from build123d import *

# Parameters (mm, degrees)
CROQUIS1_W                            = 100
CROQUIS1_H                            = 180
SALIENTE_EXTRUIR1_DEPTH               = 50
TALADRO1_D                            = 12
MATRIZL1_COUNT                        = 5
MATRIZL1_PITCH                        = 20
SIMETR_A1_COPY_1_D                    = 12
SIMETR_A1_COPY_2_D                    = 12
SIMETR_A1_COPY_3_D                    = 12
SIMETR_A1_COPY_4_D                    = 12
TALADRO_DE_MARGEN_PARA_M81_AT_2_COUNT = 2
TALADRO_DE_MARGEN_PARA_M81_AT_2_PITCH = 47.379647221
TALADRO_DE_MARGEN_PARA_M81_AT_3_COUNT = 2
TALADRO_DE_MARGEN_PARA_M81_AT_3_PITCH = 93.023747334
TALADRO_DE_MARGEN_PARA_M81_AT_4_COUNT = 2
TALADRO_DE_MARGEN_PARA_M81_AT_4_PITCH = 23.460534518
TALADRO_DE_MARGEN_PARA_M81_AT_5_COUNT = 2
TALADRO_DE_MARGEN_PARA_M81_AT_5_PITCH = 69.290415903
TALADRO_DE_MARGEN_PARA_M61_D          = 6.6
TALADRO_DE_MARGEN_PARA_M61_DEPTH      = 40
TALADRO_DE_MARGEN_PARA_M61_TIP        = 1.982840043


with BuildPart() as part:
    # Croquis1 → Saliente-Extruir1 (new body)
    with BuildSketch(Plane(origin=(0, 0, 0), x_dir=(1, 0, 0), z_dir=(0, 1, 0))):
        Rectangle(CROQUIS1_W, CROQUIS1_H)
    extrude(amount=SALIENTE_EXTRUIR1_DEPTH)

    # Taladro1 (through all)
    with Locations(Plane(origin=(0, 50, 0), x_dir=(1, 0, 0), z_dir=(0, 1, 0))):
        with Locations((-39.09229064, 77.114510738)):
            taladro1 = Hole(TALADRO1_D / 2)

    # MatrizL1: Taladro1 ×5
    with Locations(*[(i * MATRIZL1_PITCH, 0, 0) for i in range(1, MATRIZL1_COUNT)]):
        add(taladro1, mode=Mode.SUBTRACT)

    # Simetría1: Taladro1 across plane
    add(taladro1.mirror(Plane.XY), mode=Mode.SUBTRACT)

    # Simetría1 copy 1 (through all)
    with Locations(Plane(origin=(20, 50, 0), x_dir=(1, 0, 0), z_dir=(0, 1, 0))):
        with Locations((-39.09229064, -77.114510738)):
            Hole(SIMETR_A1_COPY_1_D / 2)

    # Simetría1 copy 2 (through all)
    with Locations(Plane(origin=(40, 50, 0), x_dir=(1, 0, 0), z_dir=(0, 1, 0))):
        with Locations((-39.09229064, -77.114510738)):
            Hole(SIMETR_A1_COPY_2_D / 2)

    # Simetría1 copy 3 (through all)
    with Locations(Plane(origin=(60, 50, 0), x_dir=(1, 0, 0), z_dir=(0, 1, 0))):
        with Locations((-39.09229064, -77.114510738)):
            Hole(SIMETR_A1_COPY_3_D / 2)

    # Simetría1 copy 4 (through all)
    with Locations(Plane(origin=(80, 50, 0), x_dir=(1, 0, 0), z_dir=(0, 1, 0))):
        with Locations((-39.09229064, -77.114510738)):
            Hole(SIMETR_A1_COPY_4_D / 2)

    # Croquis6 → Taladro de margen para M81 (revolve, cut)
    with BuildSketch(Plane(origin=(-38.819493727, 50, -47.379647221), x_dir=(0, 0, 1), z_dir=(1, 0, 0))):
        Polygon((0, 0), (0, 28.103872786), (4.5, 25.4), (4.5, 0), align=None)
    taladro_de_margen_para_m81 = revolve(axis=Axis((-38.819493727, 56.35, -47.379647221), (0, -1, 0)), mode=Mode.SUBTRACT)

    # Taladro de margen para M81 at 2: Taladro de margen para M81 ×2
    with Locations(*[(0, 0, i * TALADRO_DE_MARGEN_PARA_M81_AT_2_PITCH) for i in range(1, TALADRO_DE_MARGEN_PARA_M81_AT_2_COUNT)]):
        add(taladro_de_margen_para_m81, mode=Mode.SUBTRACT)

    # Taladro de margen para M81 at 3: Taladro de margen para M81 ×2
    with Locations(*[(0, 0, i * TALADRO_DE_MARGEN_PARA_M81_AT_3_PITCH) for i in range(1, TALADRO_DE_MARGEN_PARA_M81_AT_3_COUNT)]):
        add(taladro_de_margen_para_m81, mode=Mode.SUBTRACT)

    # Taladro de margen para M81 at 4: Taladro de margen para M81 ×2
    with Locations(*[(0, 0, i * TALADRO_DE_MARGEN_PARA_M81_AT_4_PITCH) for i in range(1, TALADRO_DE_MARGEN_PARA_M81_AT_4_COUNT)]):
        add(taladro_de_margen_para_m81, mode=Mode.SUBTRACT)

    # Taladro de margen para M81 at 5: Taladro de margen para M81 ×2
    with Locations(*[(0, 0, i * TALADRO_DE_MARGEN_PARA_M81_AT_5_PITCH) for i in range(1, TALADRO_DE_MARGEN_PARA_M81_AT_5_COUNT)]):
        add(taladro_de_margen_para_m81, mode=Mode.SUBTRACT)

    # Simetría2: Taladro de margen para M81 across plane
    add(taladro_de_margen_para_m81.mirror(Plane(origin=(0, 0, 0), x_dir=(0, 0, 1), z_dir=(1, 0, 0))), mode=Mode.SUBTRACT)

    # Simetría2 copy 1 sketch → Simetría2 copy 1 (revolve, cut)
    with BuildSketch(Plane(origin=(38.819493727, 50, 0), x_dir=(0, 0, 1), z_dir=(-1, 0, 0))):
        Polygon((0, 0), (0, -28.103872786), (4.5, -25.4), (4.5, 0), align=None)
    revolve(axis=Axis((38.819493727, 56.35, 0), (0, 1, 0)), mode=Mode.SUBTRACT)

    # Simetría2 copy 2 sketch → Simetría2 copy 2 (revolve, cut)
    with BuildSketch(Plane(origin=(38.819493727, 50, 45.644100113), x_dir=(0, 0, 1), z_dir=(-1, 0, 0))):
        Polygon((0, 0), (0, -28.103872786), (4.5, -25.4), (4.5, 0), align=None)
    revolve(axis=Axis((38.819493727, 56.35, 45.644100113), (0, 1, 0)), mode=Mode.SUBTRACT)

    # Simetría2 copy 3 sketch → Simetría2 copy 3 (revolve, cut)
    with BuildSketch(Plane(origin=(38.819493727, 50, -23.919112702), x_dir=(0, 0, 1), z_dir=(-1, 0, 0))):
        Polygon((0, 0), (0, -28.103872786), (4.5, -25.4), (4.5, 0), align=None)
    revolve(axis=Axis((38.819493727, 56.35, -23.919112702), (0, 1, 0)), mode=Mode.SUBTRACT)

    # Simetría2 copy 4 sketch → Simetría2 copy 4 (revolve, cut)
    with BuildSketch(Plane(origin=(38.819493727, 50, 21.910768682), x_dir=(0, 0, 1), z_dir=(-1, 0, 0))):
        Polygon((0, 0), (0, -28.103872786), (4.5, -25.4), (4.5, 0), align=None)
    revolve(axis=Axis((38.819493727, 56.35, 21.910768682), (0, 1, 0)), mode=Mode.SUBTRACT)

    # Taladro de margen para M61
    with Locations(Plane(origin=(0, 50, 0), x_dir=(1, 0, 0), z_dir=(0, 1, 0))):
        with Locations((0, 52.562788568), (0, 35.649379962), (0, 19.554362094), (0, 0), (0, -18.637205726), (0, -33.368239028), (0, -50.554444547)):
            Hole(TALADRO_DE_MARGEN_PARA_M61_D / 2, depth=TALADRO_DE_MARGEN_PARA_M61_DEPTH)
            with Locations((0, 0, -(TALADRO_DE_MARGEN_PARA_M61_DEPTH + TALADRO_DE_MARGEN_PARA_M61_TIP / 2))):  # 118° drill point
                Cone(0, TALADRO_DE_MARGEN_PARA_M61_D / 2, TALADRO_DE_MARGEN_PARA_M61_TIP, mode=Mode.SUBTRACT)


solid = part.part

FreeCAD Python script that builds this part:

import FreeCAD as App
import Part
import Sketcher
from FreeCAD import Vector
Q = App.Units.Quantity

doc = App.newDocument("Part")
body = doc.addObject("PartDesign::Body", "Body")

# Sketch on XZ plane
sketch1 = doc.addObject("Sketcher::SketchObject", "Sketch")
body.addObject(sketch1)
sketch1.AttachmentSupport = (doc.XZ_Plane, [""])
sketch1.MapMode = "FlatFace"
sketch1.addGeometry([
    Part.LineSegment(Vector(-50, -90, 0), Vector(-50, 90, 0)),
    Part.LineSegment(Vector(-50, 90, 0), Vector(50, 90, 0)),
    Part.LineSegment(Vector(50, 90, 0), Vector(50, -90, 0)),
    Part.LineSegment(Vector(50, -90, 0), Vector(-50, -90, 0)),
], False)
sketch1.addConstraint([
    Sketcher.Constraint("Coincident", 0, 2, 1, 1),
    Sketcher.Constraint("Coincident", 1, 2, 2, 1),
    Sketcher.Constraint("Coincident", 2, 2, 3, 1),
    Sketcher.Constraint("Coincident", 3, 2, 0, 1),
    Sketcher.Constraint("Vertical", 0),
    Sketcher.Constraint("Horizontal", 1),
    Sketcher.Constraint("Vertical", 2),
    Sketcher.Constraint("Horizontal", 3),
    Sketcher.Constraint("Symmetric", 0, 2, 2, 2, -1, 1),
    Sketcher.Constraint("DistanceX", 1, 1, 1, 2, 100.0),
    Sketcher.Constraint("DistanceY", 0, 1, 0, 2, 180.0),
])
pad1 = doc.addObject("PartDesign::Pad", "Pad")
body.addObject(pad1)
pad1.Profile = sketch1
pad1.Length = 50
pad1.Reversed = True

# Sketch on XZ plane
sketch2 = doc.addObject("Sketcher::SketchObject", "Sketch001")
body.addObject(sketch2)
sketch2.AttachmentSupport = (doc.XZ_Plane, [""])
sketch2.MapMode = "FlatFace"
sketch2.AttachmentOffset = App.Placement(Vector(0, 0, -50), App.Rotation())
sketch2.addGeometry(Part.Circle(Vector(-39.092291, -77.114511, 0), Vector(0, 0, 1), 6), False)
sketch2.addConstraint([
    Sketcher.Constraint("Diameter", 0, 12.0),
    Sketcher.Constraint("DistanceX", 0, 3, -1, 1, 39.092291),
    Sketcher.Constraint("DistanceY", 0, 3, -1, 1, 77.114511),
])
doc.recompute()
hole = doc.addObject("PartDesign::Hole", "Hole")
body.addObject(hole)
hole.Profile = sketch2
hole.ThreadType = "None"
hole.Diameter = 12
hole.DepthType = "ThroughAll"
hole.Reversed = True
doc.recompute()

linearpattern = doc.addObject("PartDesign::LinearPattern", "LinearPattern")
body.addObject(linearpattern)
linearpattern.Originals = [hole]
linearpattern.Direction = (doc.X_Axis, [""])
linearpattern.Mode = "offset"
linearpattern.Offset = 20
linearpattern.Occurrences = 5
body.Tip = linearpattern
doc.recompute()

mirrored = doc.addObject("PartDesign::Mirrored", "Mirrored")
body.addObject(mirrored)
mirrored.Originals = [hole]
mirrored.MirrorPlane = (doc.XY_Plane, [""])
body.Tip = mirrored

# Sketch on XZ plane
sketch3 = doc.addObject("Sketcher::SketchObject", "Sketch002")
body.addObject(sketch3)
sketch3.AttachmentSupport = (doc.XZ_Plane, [""])
sketch3.MapMode = "FlatFace"
sketch3.AttachmentOffset = App.Placement(Vector(0, 0, -50), App.Rotation())
sketch3.addGeometry(Part.Circle(Vector(-19.092291, 77.114511, 0), Vector(0, 0, 1), 6), False)
sketch3.addConstraint([
    Sketcher.Constraint("Diameter", 0, 12.0),
    Sketcher.Constraint("DistanceX", 0, 3, -1, 1, 19.092291),
    Sketcher.Constraint("DistanceY", -1, 1, 0, 3, 77.114511),
])
doc.recompute()
hole2 = doc.addObject("PartDesign::Hole", "Hole001")
body.addObject(hole2)
hole2.Profile = sketch3
hole2.ThreadType = "None"
hole2.Diameter = 12
hole2.DepthType = "ThroughAll"
hole2.Reversed = True

# Sketch on XZ plane
sketch4 = doc.addObject("Sketcher::SketchObject", "Sketch003")
body.addObject(sketch4)
sketch4.AttachmentSupport = (doc.XZ_Plane, [""])
sketch4.MapMode = "FlatFace"
sketch4.AttachmentOffset = App.Placement(Vector(0, 0, -50), App.Rotation())
sketch4.addGeometry(Part.Circle(Vector(0.907709, 77.114511, 0), Vector(0, 0, 1), 6), False)
sketch4.addConstraint([
    Sketcher.Constraint("Diameter", 0, 12.0),
    Sketcher.Constraint("DistanceX", -1, 1, 0, 3, 0.907709),
    Sketcher.Constraint("DistanceY", -1, 1, 0, 3, 77.114511),
])
doc.recompute()
hole3 = doc.addObject("PartDesign::Hole", "Hole002")
body.addObject(hole3)
hole3.Profile = sketch4
hole3.ThreadType = "None"
hole3.Diameter = 12
hole3.DepthType = "ThroughAll"
hole3.Reversed = True

# Sketch on XZ plane
sketch5 = doc.addObject("Sketcher::SketchObject", "Sketch004")
body.addObject(sketch5)
sketch5.AttachmentSupport = (doc.XZ_Plane, [""])
sketch5.MapMode = "FlatFace"
sketch5.AttachmentOffset = App.Placement(Vector(0, 0, -50), App.Rotation())
sketch5.addGeometry(Part.Circle(Vector(20.907709, 77.114511, 0), Vector(0, 0, 1), 6), False)
sketch5.addConstraint([
    Sketcher.Constraint("Diameter", 0, 12.0),
    Sketcher.Constraint("DistanceX", -1, 1, 0, 3, 20.907709),
    Sketcher.Constraint("DistanceY", -1, 1, 0, 3, 77.114511),
])
doc.recompute()
hole4 = doc.addObject("PartDesign::Hole", "Hole003")
body.addObject(hole4)
hole4.Profile = sketch5
hole4.ThreadType = "None"
hole4.Diameter = 12
hole4.DepthType = "ThroughAll"
hole4.Reversed = True

# Sketch on XZ plane
sketch6 = doc.addObject("Sketcher::SketchObject", "Sketch005")
body.addObject(sketch6)
sketch6.AttachmentSupport = (doc.XZ_Plane, [""])
sketch6.MapMode = "FlatFace"
sketch6.AttachmentOffset = App.Placement(Vector(0, 0, -50), App.Rotation())
sketch6.addGeometry(Part.Circle(Vector(40.907709, 77.114511, 0), Vector(0, 0, 1), 6), False)
sketch6.addConstraint([
    Sketcher.Constraint("Diameter", 0, 12.0),
    Sketcher.Constraint("DistanceX", -1, 1, 0, 3, 40.907709),
    Sketcher.Constraint("DistanceY", -1, 1, 0, 3, 77.114511),
])
doc.recompute()
hole5 = doc.addObject("PartDesign::Hole", "Hole004")
body.addObject(hole5)
hole5.Profile = sketch6
hole5.ThreadType = "None"
hole5.Diameter = 12
hole5.DepthType = "ThroughAll"
hole5.Reversed = True

# Sketch on YZ plane
sketch7 = doc.addObject("Sketcher::SketchObject", "Sketch006")
body.addObject(sketch7)
sketch7.AttachmentSupport = (doc.YZ_Plane, [""])
sketch7.MapMode = "FlatFace"
sketch7.AttachmentOffset = App.Placement(Vector(0, 0, -38.819494), App.Rotation())
sketch7.addGeometry([
    Part.LineSegment(Vector(21.896127, -47.379647, 0), Vector(50, -47.379647, 0)),
    Part.LineSegment(Vector(50, -47.379647, 0), Vector(50, -42.879647, 0)),
    Part.LineSegment(Vector(50, -42.879647, 0), Vector(24.6, -42.879647, 0)),
    Part.LineSegment(Vector(24.6, -42.879647, 0), Vector(21.896127, -47.379647, 0)),
], False)
sketch7.addGeometry(Part.LineSegment(Vector(50, -47.379647, 0), Vector(21.896127, -47.379647, 0)), True)  # axis
sketch7.addConstraint([
    Sketcher.Constraint("Coincident", 0, 2, 1, 1),
    Sketcher.Constraint("Coincident", 1, 2, 2, 1),
    Sketcher.Constraint("Coincident", 2, 2, 3, 1),
    Sketcher.Constraint("Coincident", 3, 2, 0, 1),
    Sketcher.Constraint("Horizontal", 0),
    Sketcher.Constraint("Vertical", 1),
    Sketcher.Constraint("Horizontal", 2),
    Sketcher.Constraint("Horizontal", 4),
    Sketcher.Constraint("Coincident", 4, 1, 0, 2),
    Sketcher.Constraint("Equal", 0, 4),
    Sketcher.Constraint("Angle", 3, Q("-121 deg")),
    Sketcher.Constraint("DistanceX", 2, 2, 2, 1, 25.4),
    Sketcher.Constraint("DistanceY", 1, 1, 1, 2, 4.5),
    Sketcher.Constraint("DistanceX", -1, 1, 0, 2, 50.0),
    Sketcher.Constraint("DistanceY", 0, 2, -1, 1, 47.379647),
])
groove = doc.addObject("PartDesign::Groove", "Groove")
body.addObject(groove)
groove.Profile = sketch7
groove.ReferenceAxis = (sketch7, ["Axis0"])
groove.Angle = 360
doc.recompute()

linearpattern2 = doc.addObject("PartDesign::LinearPattern", "LinearPattern001")
body.addObject(linearpattern2)
linearpattern2.Originals = [groove]
linearpattern2.Direction = (doc.Z_Axis, [""])
linearpattern2.Mode = "offset"
linearpattern2.Offset = 47.379647
linearpattern2.Occurrences = 2
body.Tip = linearpattern2
doc.recompute()

linearpattern3 = doc.addObject("PartDesign::LinearPattern", "LinearPattern002")
body.addObject(linearpattern3)
linearpattern3.Originals = [groove]
linearpattern3.Direction = (doc.Z_Axis, [""])
linearpattern3.Mode = "offset"
linearpattern3.Offset = 93.023747
linearpattern3.Occurrences = 2
body.Tip = linearpattern3
doc.recompute()

linearpattern4 = doc.addObject("PartDesign::LinearPattern", "LinearPattern003")
body.addObject(linearpattern4)
linearpattern4.Originals = [groove]
linearpattern4.Direction = (doc.Z_Axis, [""])
linearpattern4.Mode = "offset"
linearpattern4.Offset = 23.460535
linearpattern4.Occurrences = 2
body.Tip = linearpattern4
doc.recompute()

linearpattern5 = doc.addObject("PartDesign::LinearPattern", "LinearPattern004")
body.addObject(linearpattern5)
linearpattern5.Originals = [groove]
linearpattern5.Direction = (doc.Z_Axis, [""])
linearpattern5.Mode = "offset"
linearpattern5.Offset = 69.290416
linearpattern5.Occurrences = 2
body.Tip = linearpattern5
doc.recompute()

mirrored2 = doc.addObject("PartDesign::Mirrored", "Mirrored001")
body.addObject(mirrored2)
mirrored2.Originals = [groove]
mirrored2.MirrorPlane = (doc.YZ_Plane, [""])
body.Tip = mirrored2

# Sketch on YZ plane
sketch8 = doc.addObject("Sketcher::SketchObject", "Sketch007")
body.addObject(sketch8)
sketch8.AttachmentSupport = (doc.YZ_Plane, [""])
sketch8.MapMode = "FlatFace"
sketch8.AttachmentOffset = App.Placement(Vector(0, 0, 38.819494), App.Rotation())
sketch8.addGeometry([
    Part.LineSegment(Vector(50, 0, 0), Vector(21.896127, 0, 0)),
    Part.LineSegment(Vector(21.896127, 0, 0), Vector(24.6, 4.5, 0)),
    Part.LineSegment(Vector(24.6, 4.5, 0), Vector(50, 4.5, 0)),
    Part.LineSegment(Vector(50, 4.5, 0), Vector(50, 0, 0)),
], False)
sketch8.addConstraint([
    Sketcher.Constraint("Coincident", 0, 2, 1, 1),
    Sketcher.Constraint("Coincident", 1, 2, 2, 1),
    Sketcher.Constraint("Coincident", 2, 2, 3, 1),
    Sketcher.Constraint("Coincident", 3, 2, 0, 1),
    Sketcher.Constraint("Horizontal", 0),
    Sketcher.Constraint("Horizontal", 2),
    Sketcher.Constraint("Vertical", 3),
    Sketcher.Constraint("PointOnObject", 0, 2, -1),
    Sketcher.Constraint("Angle", 1, Q("59 deg")),
    Sketcher.Constraint("DistanceX", 2, 1, 2, 2, 25.4),
    Sketcher.Constraint("DistanceY", 3, 2, 3, 1, 4.5),
    Sketcher.Constraint("DistanceX", -1, 1, 2, 2, 50.0),
])
groove2 = doc.addObject("PartDesign::Groove", "Groove001")
body.addObject(groove2)
groove2.Profile = sketch8
groove2.ReferenceAxis = (sketch8, ["H_Axis"])
groove2.Angle = 360

# Sketch on YZ plane
sketch9 = doc.addObject("Sketcher::SketchObject", "Sketch008")
body.addObject(sketch9)
sketch9.AttachmentSupport = (doc.YZ_Plane, [""])
sketch9.MapMode = "FlatFace"
sketch9.AttachmentOffset = App.Placement(Vector(0, 0, 38.819494), App.Rotation())
sketch9.addGeometry([
    Part.LineSegment(Vector(50, 45.6441, 0), Vector(21.896127, 45.6441, 0)),
    Part.LineSegment(Vector(21.896127, 45.6441, 0), Vector(24.6, 50.1441, 0)),
    Part.LineSegment(Vector(24.6, 50.1441, 0), Vector(50, 50.1441, 0)),
    Part.LineSegment(Vector(50, 50.1441, 0), Vector(50, 45.6441, 0)),
], False)
sketch9.addGeometry(Part.LineSegment(Vector(21.896127, 45.6441, 0), Vector(50, 45.6441, 0)), True)  # axis
sketch9.addConstraint([
    Sketcher.Constraint("Coincident", 0, 2, 1, 1),
    Sketcher.Constraint("Coincident", 1, 2, 2, 1),
    Sketcher.Constraint("Coincident", 2, 2, 3, 1),
    Sketcher.Constraint("Coincident", 3, 2, 0, 1),
    Sketcher.Constraint("Horizontal", 0),
    Sketcher.Constraint("Horizontal", 2),
    Sketcher.Constraint("Vertical", 3),
    Sketcher.Constraint("Horizontal", 4),
    Sketcher.Constraint("Coincident", 4, 1, 0, 2),
    Sketcher.Constraint("Vertical", 2, 2, 4, 2),
    Sketcher.Constraint("Angle", 1, Q("59 deg")),
    Sketcher.Constraint("DistanceX", 2, 1, 2, 2, 25.4),
    Sketcher.Constraint("DistanceY", 3, 2, 3, 1, 4.5),
    Sketcher.Constraint("DistanceX", -1, 1, 2, 2, 50.0),
    Sketcher.Constraint("DistanceY", -1, 1, 0, 2, 45.6441),
])
groove3 = doc.addObject("PartDesign::Groove", "Groove002")
body.addObject(groove3)
groove3.Profile = sketch9
groove3.ReferenceAxis = (sketch9, ["Axis0"])
groove3.Angle = 360

# Sketch on YZ plane
sketch10 = doc.addObject("Sketcher::SketchObject", "Sketch009")
body.addObject(sketch10)
sketch10.AttachmentSupport = (doc.YZ_Plane, [""])
sketch10.MapMode = "FlatFace"
sketch10.AttachmentOffset = App.Placement(Vector(0, 0, 38.819494), App.Rotation())
sketch10.addGeometry([
    Part.LineSegment(Vector(50, -23.919113, 0), Vector(21.896127, -23.919113, 0)),
    Part.LineSegment(Vector(21.896127, -23.919113, 0), Vector(24.6, -19.419113, 0)),
    Part.LineSegment(Vector(24.6, -19.419113, 0), Vector(50, -19.419113, 0)),
    Part.LineSegment(Vector(50, -19.419113, 0), Vector(50, -23.919113, 0)),
], False)
sketch10.addGeometry(Part.LineSegment(Vector(21.896127, -23.919113, 0), Vector(50, -23.919113, 0)), True)  # axis
sketch10.addConstraint([
    Sketcher.Constraint("Coincident", 0, 2, 1, 1),
    Sketcher.Constraint("Coincident", 1, 2, 2, 1),
    Sketcher.Constraint("Coincident", 2, 2, 3, 1),
    Sketcher.Constraint("Coincident", 3, 2, 0, 1),
    Sketcher.Constraint("Horizontal", 0),
    Sketcher.Constraint("Horizontal", 2),
    Sketcher.Constraint("Vertical", 3),
    Sketcher.Constraint("Horizontal", 4),
    Sketcher.Constraint("Coincident", 4, 1, 0, 2),
    Sketcher.Constraint("Vertical", 2, 2, 4, 2),
    Sketcher.Constraint("Angle", 1, Q("59 deg")),
    Sketcher.Constraint("DistanceX", 2, 1, 2, 2, 25.4),
    Sketcher.Constraint("DistanceY", 3, 2, 3, 1, 4.5),
    Sketcher.Constraint("DistanceX", -1, 1, 2, 2, 50.0),
    Sketcher.Constraint("DistanceY", 0, 2, -1, 1, 23.919113),
])
groove4 = doc.addObject("PartDesign::Groove", "Groove003")
body.addObject(groove4)
groove4.Profile = sketch10
groove4.ReferenceAxis = (sketch10, ["Axis0"])
groove4.Angle = 360

# Sketch on YZ plane
sketch11 = doc.addObject("Sketcher::SketchObject", "Sketch010")
body.addObject(sketch11)
sketch11.AttachmentSupport = (doc.YZ_Plane, [""])
sketch11.MapMode = "FlatFace"
sketch11.AttachmentOffset = App.Placement(Vector(0, 0, 38.819494), App.Rotation())
sketch11.addGeometry([
    Part.LineSegment(Vector(50, 21.910769, 0), Vector(21.896127, 21.910769, 0)),
    Part.LineSegment(Vector(21.896127, 21.910769, 0), Vector(24.6, 26.410769, 0)),
    Part.LineSegment(Vector(24.6, 26.410769, 0), Vector(50, 26.410769, 0)),
    Part.LineSegment(Vector(50, 26.410769, 0), Vector(50, 21.910769, 0)),
], False)
sketch11.addGeometry(Part.LineSegment(Vector(21.896127, 21.910769, 0), Vector(50, 21.910769, 0)), True)  # axis
sketch11.addConstraint([
    Sketcher.Constraint("Coincident", 0, 2, 1, 1),
    Sketcher.Constraint("Coincident", 1, 2, 2, 1),
    Sketcher.Constraint("Coincident", 2, 2, 3, 1),
    Sketcher.Constraint("Coincident", 3, 2, 0, 1),
    Sketcher.Constraint("Horizontal", 0),
    Sketcher.Constraint("Horizontal", 2),
    Sketcher.Constraint("Vertical", 3),
    Sketcher.Constraint("Horizontal", 4),
    Sketcher.Constraint("Coincident", 4, 1, 0, 2),
    Sketcher.Constraint("Vertical", 2, 2, 4, 2),
    Sketcher.Constraint("Angle", 1, Q("59 deg")),
    Sketcher.Constraint("DistanceX", 2, 1, 2, 2, 25.4),
    Sketcher.Constraint("DistanceY", 3, 2, 3, 1, 4.5),
    Sketcher.Constraint("DistanceX", -1, 1, 2, 2, 50.0),
    Sketcher.Constraint("DistanceY", -1, 1, 0, 2, 21.910769),
])
groove5 = doc.addObject("PartDesign::Groove", "Groove004")
body.addObject(groove5)
groove5.Profile = sketch11
groove5.ReferenceAxis = (sketch11, ["Axis0"])
groove5.Angle = 360

# Sketch on XZ plane
sketch12 = doc.addObject("Sketcher::SketchObject", "Sketch011")
body.addObject(sketch12)
sketch12.AttachmentSupport = (doc.XZ_Plane, [""])
sketch12.MapMode = "FlatFace"
sketch12.AttachmentOffset = App.Placement(Vector(0, 0, -50), App.Rotation())
sketch12.addGeometry([
    Part.Circle(Vector(0, -52.562789, 0), Vector(0, 0, 1), 3.3),  # 0
    Part.Circle(Vector(0, -35.64938, 0), Vector(0, 0, 1), 3.3),  # 1
    Part.Circle(Vector(0, -19.554362, 0), Vector(0, 0, 1), 3.3),  # 2
    Part.Circle(Vector(0, 0, 0), Vector(0, 0, 1), 3.3),  # 3
    Part.Circle(Vector(0, 18.637206, 0), Vector(0, 0, 1), 3.3),  # 4
    Part.Circle(Vector(0, 33.368239, 0), Vector(0, 0, 1), 3.3),  # 5
    Part.Circle(Vector(0, 50.554445, 0), Vector(0, 0, 1), 3.3),  # 6
], False)
sketch12.addConstraint([
    Sketcher.Constraint("Coincident", 3, 3, -1, 1),
    Sketcher.Constraint("Equal", 0, 1),
    Sketcher.Constraint("Equal", 1, 2),
    Sketcher.Constraint("Equal", 2, 3),
    Sketcher.Constraint("Equal", 3, 4),
    Sketcher.Constraint("Equal", 4, 5),
    Sketcher.Constraint("Equal", 5, 6),
    Sketcher.Constraint("PointOnObject", 0, 3, -2),
    Sketcher.Constraint("PointOnObject", 1, 3, -2),
    Sketcher.Constraint("PointOnObject", 2, 3, -2),
    Sketcher.Constraint("PointOnObject", 4, 3, -2),
    Sketcher.Constraint("PointOnObject", 5, 3, -2),
    Sketcher.Constraint("PointOnObject", 6, 3, -2),
    Sketcher.Constraint("Diameter", 0, 6.6),
    Sketcher.Constraint("DistanceY", 2, 3, 5, 3, 52.922601),
    Sketcher.Constraint("DistanceY", 0, 3, -1, 1, 52.562789),
    Sketcher.Constraint("DistanceY", 1, 3, -1, 1, 35.64938),
    Sketcher.Constraint("DistanceY", -1, 1, 5, 3, 33.368239),
    Sketcher.Constraint("DistanceY", 4, 3, 6, 3, 31.917239),
    Sketcher.Constraint("DistanceY", -1, 1, 4, 3, 18.637206),
])
doc.recompute()
hole6 = doc.addObject("PartDesign::Hole", "Hole005")
body.addObject(hole6)
hole6.Profile = sketch12
hole6.ThreadType = "None"
hole6.Diameter = 6.6
hole6.DepthType = "Dimension"
hole6.Depth = 40
hole6.DrillPoint = "Angled"
hole6.DrillPointAngle = 118
hole6.Reversed = True

doc.recompute()
